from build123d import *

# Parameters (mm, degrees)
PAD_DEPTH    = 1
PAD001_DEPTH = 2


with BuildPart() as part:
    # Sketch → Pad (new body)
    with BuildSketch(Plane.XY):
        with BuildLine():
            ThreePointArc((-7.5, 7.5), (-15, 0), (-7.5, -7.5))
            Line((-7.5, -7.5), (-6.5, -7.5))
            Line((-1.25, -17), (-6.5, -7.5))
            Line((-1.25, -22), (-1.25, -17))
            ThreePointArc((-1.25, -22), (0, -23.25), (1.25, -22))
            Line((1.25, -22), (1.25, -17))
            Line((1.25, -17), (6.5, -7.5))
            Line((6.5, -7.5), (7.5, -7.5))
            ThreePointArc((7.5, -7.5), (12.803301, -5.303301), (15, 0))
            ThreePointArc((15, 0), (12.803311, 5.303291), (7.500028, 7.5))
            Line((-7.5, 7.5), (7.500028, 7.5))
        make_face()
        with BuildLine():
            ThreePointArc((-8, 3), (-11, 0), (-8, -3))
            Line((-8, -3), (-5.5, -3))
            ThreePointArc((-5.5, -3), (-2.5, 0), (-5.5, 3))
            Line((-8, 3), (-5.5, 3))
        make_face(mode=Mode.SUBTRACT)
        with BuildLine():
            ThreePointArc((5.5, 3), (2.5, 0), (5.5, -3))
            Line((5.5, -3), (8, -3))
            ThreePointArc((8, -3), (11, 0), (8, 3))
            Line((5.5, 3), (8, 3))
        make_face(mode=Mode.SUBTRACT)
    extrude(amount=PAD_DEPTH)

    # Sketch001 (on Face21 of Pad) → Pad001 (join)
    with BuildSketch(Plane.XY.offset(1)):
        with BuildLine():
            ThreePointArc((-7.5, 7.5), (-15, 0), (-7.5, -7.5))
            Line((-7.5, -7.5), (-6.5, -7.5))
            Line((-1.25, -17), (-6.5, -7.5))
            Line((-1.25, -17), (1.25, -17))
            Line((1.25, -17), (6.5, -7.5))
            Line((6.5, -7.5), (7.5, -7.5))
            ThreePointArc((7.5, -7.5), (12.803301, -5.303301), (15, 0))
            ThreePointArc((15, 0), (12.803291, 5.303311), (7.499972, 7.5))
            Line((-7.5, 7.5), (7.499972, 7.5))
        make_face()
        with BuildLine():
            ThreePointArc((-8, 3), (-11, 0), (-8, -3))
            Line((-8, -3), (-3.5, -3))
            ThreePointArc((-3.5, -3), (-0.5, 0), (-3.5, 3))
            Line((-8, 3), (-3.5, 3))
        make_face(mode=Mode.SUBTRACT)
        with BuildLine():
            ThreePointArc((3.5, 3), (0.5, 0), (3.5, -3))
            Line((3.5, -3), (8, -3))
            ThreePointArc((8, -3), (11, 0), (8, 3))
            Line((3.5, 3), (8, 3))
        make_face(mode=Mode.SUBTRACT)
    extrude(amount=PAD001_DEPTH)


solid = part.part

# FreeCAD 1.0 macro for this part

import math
import FreeCAD as App
import Part
import Sketcher
from FreeCAD import Vector
Q = App.Units.Quantity

doc = App.newDocument("Part")
params = doc.addObject("Spreadsheet::Sheet", "Params")
for row, (alias, value) in enumerate([
    ("sketch1_radius", "3 mm"),
    ("sketch1_radius2", "7.5 mm"),
    ("sketch1_width", "1 mm"),
    ("sketch1_height", "5 mm"),
    ("sketch1_radius3", "1.25 mm"),
    ("pad1_length", "1 mm"),
    ("sketch2_radius", "3 mm"),
    ("sketch2_radius2", "7.5 mm"),
    ("sketch2_width", "1 mm"),
    ("sketch2_width2", "2.5 mm"),
    ("sketch2_width3", "4.5 mm"),
    ("pad2_length", "2 mm"),
], start=1):
    params.set(f"A{row}", alias)
    params.set(f"B{row}", "=" + value)
    params.setAlias(f"B{row}", alias)

body = doc.addObject("PartDesign::Body", "Body")

# Sketch on XY plane
sketch1 = body.newObject("Sketcher::SketchObject", "Sketch")
sketch1.AttachmentSupport = (doc.getObject("XY_Plane"), [""])
sketch1.MapMode = "FlatFace"
sketch1.addGeometry([
    Part.ArcOfCircle(Part.Circle(Vector(-7.5, 0, 0), Vector(0, 0, 1), 7.5), math.radians(90), math.radians(270)),  # 0
    Part.LineSegment(Vector(-7.5, -7.5, 0), Vector(-6.5, -7.5, 0)),  # 1
    Part.LineSegment(Vector(-6.5, -7.5, 0), Vector(-1.2, -17, 0)),  # 2
    Part.LineSegment(Vector(-1.2, -17, 0), Vector(-1.2, -22, 0)),  # 3
    Part.ArcOfCircle(Part.Circle(Vector(0, -22, 0), Vector(0, 0, 1), 1.2), math.radians(180), math.radians(360)),  # 4
    Part.LineSegment(Vector(1.2, -22, 0), Vector(1.2, -17, 0)),  # 5
    Part.LineSegment(Vector(1.2, -17, 0), Vector(6.5, -7.5, 0)),  # 6
    Part.LineSegment(Vector(6.5, -7.5, 0), Vector(7.5, -7.5, 0)),  # 7
    Part.ArcOfCircle(Part.Circle(Vector(7.5, 0, 0), Vector(0, 0, 1), 7.5), math.radians(-90), math.radians(0)),  # 8
    Part.ArcOfCircle(Part.Circle(Vector(7.5, 0, 0), Vector(0, 0, 1), 7.5), math.radians(0), math.radians(90)),  # 9
    Part.LineSegment(Vector(7.5, 7.5, 0), Vector(-7.5, 7.5, 0)),  # 10
    Part.ArcOfCircle(Part.Circle(Vector(-8, 0, 0), Vector(0, 0, 1), 3), math.radians(90), math.radians(270)),  # 11
    Part.LineSegment(Vector(-8, 3, 0), Vector(-5.5, 3, 0)),  # 12
    Part.ArcOfCircle(Part.Circle(Vector(-5.5, 0, 0), Vector(0, 0, 1), 3), math.radians(-90), math.radians(90)),  # 13
    Part.LineSegment(Vector(-5.5, -3, 0), Vector(-8, -3, 0)),  # 14
    Part.ArcOfCircle(Part.Circle(Vector(5.5, 0, 0), Vector(0, 0, 1), 3), math.radians(90), math.radians(270)),  # 15
    Part.LineSegment(Vector(5.5, 3, 0), Vector(8, 3, 0)),  # 16
    Part.ArcOfCircle(Part.Circle(Vector(8, 0, 0), Vector(0, 0, 1), 3), math.radians(-90), math.radians(90)),  # 17
    Part.LineSegment(Vector(8, -3, 0), Vector(5.5, -3, 0)),  # 18
], False)
sketch1.addConstraint([
    Sketcher.Constraint("Tangent", 0, 2, 1, 1),
    Sketcher.Constraint("Coincident", 1, 2, 2, 1),
    Sketcher.Constraint("Coincident", 2, 2, 3, 1),
    Sketcher.Constraint("Tangent", 3, 2, 4, 1),
    Sketcher.Constraint("Tangent", 4, 2, 5, 1),
    Sketcher.Constraint("Coincident", 5, 2, 6, 1),
    Sketcher.Constraint("Coincident", 6, 2, 7, 1),
    Sketcher.Constraint("Tangent", 7, 2, 8, 1),
    Sketcher.Constraint("Tangent", 8, 2, 9, 1),
    Sketcher.Constraint("Coincident", 9, 2, 10, 1),
    Sketcher.Constraint("Tangent", 10, 2, 0, 1),
    Sketcher.Constraint("Tangent", 11, 1, 12, 1),
    Sketcher.Constraint("Tangent", 12, 2, 13, 2),
    Sketcher.Constraint("Tangent", 13, 1, 14, 1),
    Sketcher.Constraint("Tangent", 14, 2, 11, 2),
    Sketcher.Constraint("Tangent", 15, 1, 16, 1),
    Sketcher.Constraint("Tangent", 16, 2, 17, 2),
    Sketcher.Constraint("Tangent", 17, 1, 18, 1),
    Sketcher.Constraint("Tangent", 18, 2, 15, 2),
    Sketcher.Constraint("Horizontal", 1),
    Sketcher.Constraint("Vertical", 3),
    Sketcher.Constraint("Vertical", 5),
    Sketcher.Constraint("Horizontal", 7),
    Sketcher.Constraint("Horizontal", 10),
    Sketcher.Constraint("Horizontal", 12),
    Sketcher.Constraint("Horizontal", 14),
    Sketcher.Constraint("Horizontal", 16),
    Sketcher.Constraint("Horizontal", 18),
    Sketcher.Constraint("Equal", 0, 8),
    Sketcher.Constraint("Equal", 8, 9),
    Sketcher.Constraint("Equal", 13, 15),
    Sketcher.Constraint("Symmetric", 0, 3, 8, 3, -1, 1),
    Sketcher.Constraint("Symmetric", 13, 3, 15, 3, -1, 1),
    Sketcher.Constraint("Symmetric", 11, 3, 17, 3, -2),
    Sketcher.Constraint("Symmetric", 2, 2, 5, 2, -2),
    Sketcher.Constraint("PointOnObject", 8, 2, -1),
    Sketcher.Constraint("Equal", 1, 7),
    Sketcher.Constraint("Radius", 11, Q("3 mm")),
    Sketcher.Constraint("Radius", 0, Q("7.5 mm")),
    Sketcher.Constraint("DistanceX", 1, 1, 1, 2, Q("1 mm")),
    Sketcher.Constraint("DistanceY", 3, 2, 3, 1, Q("5 mm")),
    Sketcher.Constraint("Radius", 4, Q("1.25 mm")),
    Sketcher.Constraint("DistanceX", 12, 1, 12, 2, Q("2.5 mm")),
    Sketcher.Constraint("DistanceY", 4, 3, -1, 1, Q("22 mm")),
    Sketcher.Constraint("DistanceX", 11, 3, -1, 1, Q("8 mm")),
    Sketcher.Constraint("DistanceX", -1, 1, 8, 2, Q("15 mm")),
    Sketcher.Constraint("DistanceX", 10, 2, 10, 1, Q("15.000028 mm")),
])
sketch1.setExpression("Constraints[37]", "Params.sketch1_radius")
sketch1.setExpression("Constraints[38]", "Params.sketch1_radius2")
sketch1.setExpression("Constraints[39]", "Params.sketch1_width")
sketch1.setExpression("Constraints[40]", "Params.sketch1_height")
sketch1.setExpression("Constraints[41]", "Params.sketch1_radius3")
pad1 = body.newObject("PartDesign::Pad", "Pad")
pad1.Profile = sketch1
pad1.setExpression("Length", "Params.pad1_length")

# Sketch on XY plane
sketch2 = body.newObject("Sketcher::SketchObject", "Sketch001")
sketch2.AttachmentSupport = (doc.getObject("XY_Plane"), [""])
sketch2.MapMode = "FlatFace"
sketch2.AttachmentOffset = App.Placement(Vector(0, 0, 1), App.Rotation())
sketch2.addGeometry([
    Part.ArcOfCircle(Part.Circle(Vector(-7.5, 0, 0), Vector(0, 0, 1), 7.5), math.radians(90), math.radians(270)),  # 0
    Part.LineSegment(Vector(-7.5, -7.5, 0), Vector(-6.5, -7.5, 0)),  # 1
    Part.LineSegment(Vector(-6.5, -7.5, 0), Vector(-1.2, -17, 0)),  # 2
    Part.LineSegment(Vector(-1.2, -17, 0), Vector(1.2, -17, 0)),  # 3
    Part.LineSegment(Vector(1.2, -17, 0), Vector(6.5, -7.5, 0)),  # 4
    Part.LineSegment(Vector(6.5, -7.5, 0), Vector(7.5, -7.5, 0)),  # 5
    Part.ArcOfCircle(Part.Circle(Vector(7.5, 0, 0), Vector(0, 0, 1), 7.5), math.radians(-90), math.radians(0)),  # 6
    Part.ArcOfCircle(Part.Circle(Vector(7.5, 0, 0), Vector(0, 0, 1), 7.5), math.radians(0), math.radians(90)),  # 7
    Part.LineSegment(Vector(7.5, 7.5, 0), Vector(-7.5, 7.5, 0)),  # 8
    Part.ArcOfCircle(Part.Circle(Vector(-8, 0, 0), Vector(0, 0, 1), 3), math.radians(90), math.radians(270)),  # 9
    Part.LineSegment(Vector(-8, 3, 0), Vector(-3.5, 3, 0)),  # 10
    Part.ArcOfCircle(Part.Circle(Vector(-3.5, 0, 0), Vector(0, 0, 1), 3), math.radians(-90), math.radians(90)),  # 11
    Part.LineSegment(Vector(-3.5, -3, 0), Vector(-8, -3, 0)),  # 12
    Part.ArcOfCircle(Part.Circle(Vector(3.5, 0, 0), Vector(0, 0, 1), 3), math.radians(90), math.radians(270)),  # 13
    Part.LineSegment(Vector(3.5, 3, 0), Vector(8, 3, 0)),  # 14
    Part.ArcOfCircle(Part.Circle(Vector(8, 0, 0), Vector(0, 0, 1), 3), math.radians(-90), math.radians(90)),  # 15
    Part.LineSegment(Vector(8, -3, 0), Vector(3.5, -3, 0)),  # 16
], False)
sketch2.addConstraint([
    Sketcher.Constraint("Tangent", 0, 2, 1, 1),
    Sketcher.Constraint("Coincident", 1, 2, 2, 1),
    Sketcher.Constraint("Coincident", 2, 2, 3, 1),
    Sketcher.Constraint("Coincident", 3, 2, 4, 1),
    Sketcher.Constraint("Coincident", 4, 2, 5, 1),
    Sketcher.Constraint("Tangent", 5, 2, 6, 1),
    Sketcher.Constraint("Tangent", 6, 2, 7, 1),
    Sketcher.Constraint("Coincident", 7, 2, 8, 1),
    Sketcher.Constraint("Tangent", 8, 2, 0, 1),
    Sketcher.Constraint("Tangent", 9, 1, 10, 1),
    Sketcher.Constraint("Tangent", 10, 2, 11, 2),
    Sketcher.Constraint("Tangent", 11, 1, 12, 1),
    Sketcher.Constraint("Tangent", 12, 2, 9, 2),
    Sketcher.Constraint("Tangent", 13, 1, 14, 1),
    Sketcher.Constraint("Tangent", 14, 2, 15, 2),
    Sketcher.Constraint("Tangent", 15, 1, 16, 1),
    Sketcher.Constraint("Tangent", 16, 2, 13, 2),
    Sketcher.Constraint("Horizontal", 1),
    Sketcher.Constraint("Horizontal", 3),
    Sketcher.Constraint("Horizontal", 5),
    Sketcher.Constraint("Horizontal", 8),
    Sketcher.Constraint("Horizontal", 10),
    Sketcher.Constraint("Horizontal", 12),
    Sketcher.Constraint("Horizontal", 14),
    Sketcher.Constraint("Horizontal", 16),
    Sketcher.Constraint("Equal", 0, 6),
    Sketcher.Constraint("Equal", 6, 7),
    Sketcher.Constraint("Equal", 11, 13),
    Sketcher.Constraint("Symmetric", 0, 3, 6, 3, -1, 1),
    Sketcher.Constraint("Symmetric", 11, 3, 13, 3, -1, 1),
    Sketcher.Constraint("Symmetric", 9, 3, 15, 3, -2),
    Sketcher.Constraint("PointOnObject", 6, 2, -1),
    Sketcher.Constraint("Equal", 1, 5),
    Sketcher.Constraint("Equal", 2, 4),
    Sketcher.Constraint("Radius", 9, Q("3 mm")),
    Sketcher.Constraint("Radius", 0, Q("7.5 mm")),
    Sketcher.Constraint("DistanceX", 1, 1, 1, 2, Q("1 mm")),
    Sketcher.Constraint("DistanceX", 3, 1, 3, 2, Q("2.5 mm")),
    Sketcher.Constraint("DistanceX", 10, 1, 10, 2, Q("4.5 mm")),
    Sketcher.Constraint("DistanceX", 9, 3, -1, 1, Q("8 mm")),
    Sketcher.Constraint("DistanceY", 2, 2, -1, 1, Q("17 mm")),
    Sketcher.Constraint("DistanceX", -1, 1, 6, 2, Q("15 mm")),
    Sketcher.Constraint("DistanceX", 8, 2, 8, 1, Q("14.999972 mm")),
])
sketch2.setExpression("Constraints[34]", "Params.sketch2_radius")
sketch2.setExpression("Constraints[35]", "Params.sketch2_radius2")
sketch2.setExpression("Constraints[36]", "Params.sketch2_width")
sketch2.setExpression("Constraints[37]", "Params.sketch2_width2")
sketch2.setExpression("Constraints[38]", "Params.sketch2_width3")
pad2 = body.newObject("PartDesign::Pad", "Pad001")
pad2.Profile = sketch2
pad2.setExpression("Length", "Params.pad2_length")

doc.recompute()
